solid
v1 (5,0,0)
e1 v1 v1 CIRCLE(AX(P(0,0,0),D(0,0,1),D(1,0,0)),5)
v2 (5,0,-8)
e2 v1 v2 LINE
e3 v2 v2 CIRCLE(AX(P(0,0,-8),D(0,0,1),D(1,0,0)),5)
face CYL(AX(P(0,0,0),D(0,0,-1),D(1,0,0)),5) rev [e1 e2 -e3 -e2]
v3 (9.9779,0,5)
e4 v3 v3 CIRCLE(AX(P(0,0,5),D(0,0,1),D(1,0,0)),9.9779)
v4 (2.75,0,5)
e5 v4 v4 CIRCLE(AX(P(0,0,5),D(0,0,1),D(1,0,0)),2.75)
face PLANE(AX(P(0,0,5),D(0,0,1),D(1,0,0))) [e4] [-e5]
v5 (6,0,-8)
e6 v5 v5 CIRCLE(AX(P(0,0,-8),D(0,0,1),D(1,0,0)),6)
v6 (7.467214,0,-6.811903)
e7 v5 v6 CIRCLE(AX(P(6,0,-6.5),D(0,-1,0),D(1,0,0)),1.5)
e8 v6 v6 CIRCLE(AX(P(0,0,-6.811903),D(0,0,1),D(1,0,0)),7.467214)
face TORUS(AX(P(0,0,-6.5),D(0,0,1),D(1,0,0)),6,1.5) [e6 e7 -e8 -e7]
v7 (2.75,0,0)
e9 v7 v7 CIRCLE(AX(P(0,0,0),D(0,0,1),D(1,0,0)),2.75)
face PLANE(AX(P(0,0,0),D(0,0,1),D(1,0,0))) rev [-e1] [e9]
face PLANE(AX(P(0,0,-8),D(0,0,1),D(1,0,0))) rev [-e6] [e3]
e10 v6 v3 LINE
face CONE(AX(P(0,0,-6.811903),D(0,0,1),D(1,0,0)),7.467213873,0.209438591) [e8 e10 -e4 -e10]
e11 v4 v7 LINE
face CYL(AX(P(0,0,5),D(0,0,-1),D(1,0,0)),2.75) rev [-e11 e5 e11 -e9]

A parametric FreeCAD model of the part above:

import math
import FreeCAD as App
import Part
import Sketcher
from FreeCAD import Vector
Q = App.Units.Quantity

doc = App.newDocument("Part")
body = doc.addObject("PartDesign::Body", "Body")

# Sketch on XZ plane
sketch1 = body.newObject("Sketcher::SketchObject", "Sketch")
sketch1.AttachmentSupport = (doc.getObject("XZ_Plane"), [""])
sketch1.MapMode = "FlatFace"
sketch1.addGeometry(Part.LineSegment(Vector(9.9779, 5, 0), Vector(2.75, 5, 0)), False)
sketch1.addGeometry(Part.LineSegment(Vector(2.75, 5, 0), Vector(2.75, 0, 0)), False)
sketch1.addGeometry(Part.LineSegment(Vector(2.75, 0, 0), Vector(5, 0, 0)), False)
sketch1.addGeometry(Part.LineSegment(Vector(5, 0, 0), Vector(5, -8, 0)), False)
sketch1.addGeometry(Part.LineSegment(Vector(5, -8, 0), Vector(6, -8, 0)), False)
sketch1.addGeometry(Part.ArcOfCircle(Part.Circle(Vector(6, -6.5, 0), Vector(0, 0, 1), 1.5), math.radians(-90), math.radians(-12.001383)), False)
sketch1.addGeometry(Part.LineSegment(Vector(7.4672, -6.8119, 0), Vector(9.9779, 5, 0)), False)
sketch1.addConstraint(Sketcher.Constraint("Coincident", 0, 2, 1, 1))
sketch1.addConstraint(Sketcher.Constraint("Coincident", 1, 2, 2, 1))
sketch1.addConstraint(Sketcher.Constraint("Coincident", 2, 2, 3, 1))
sketch1.addConstraint(Sketcher.Constraint("Coincident", 3, 2, 4, 1))
sketch1.addConstraint(Sketcher.Constraint("Tangent", 4, 2, 5, 1))
sketch1.addConstraint(Sketcher.Constraint("Tangent", 5, 2, 6, 1))
sketch1.addConstraint(Sketcher.Constraint("Coincident", 6, 2, 0, 1))
sketch1.addConstraint(Sketcher.Constraint("Horizontal", 0))
sketch1.addConstraint(Sketcher.Constraint("Vertical", 1))
sketch1.addConstraint(Sketcher.Constraint("Horizontal", 2))
sketch1.addConstraint(Sketcher.Constraint("Vertical", 3))
sketch1.addConstraint(Sketcher.Constraint("Horizontal", 4))
sketch1.addConstraint(Sketcher.Constraint("PointOnObject", 1, 2, -1))
sketch1.addConstraint(Sketcher.Constraint("DistanceY", 1, 2, 1, 1, Q("5 mm")))
sketch1.addConstraint(Sketcher.Constraint("DistanceX", -1, 1, 2, 2, Q("5 mm")))
sketch1.addConstraint(Sketcher.Constraint("Radius", 5, Q("1.5 mm")))
sketch1.addConstraint(Sketcher.Constraint("DistanceX", 4, 1, 4, 2, Q("1 mm")))
sketch1.addConstraint(Sketcher.Constraint("DistanceY", 3, 2, 3, 1, Q("8 mm")))
sketch1.addConstraint(Sketcher.Constraint("DistanceX", -1, 1, 0, 2, Q("2.75 mm")))
sketch1.addConstraint(Sketcher.Constraint("Angle", 6, Q("78 deg")))
revolution = body.newObject("PartDesign::Revolution", "Revolution")
revolution.Profile = sketch1
revolution.ReferenceAxis = (sketch1, ["V_Axis"])
revolution.Angle = 360

doc.recompute()
